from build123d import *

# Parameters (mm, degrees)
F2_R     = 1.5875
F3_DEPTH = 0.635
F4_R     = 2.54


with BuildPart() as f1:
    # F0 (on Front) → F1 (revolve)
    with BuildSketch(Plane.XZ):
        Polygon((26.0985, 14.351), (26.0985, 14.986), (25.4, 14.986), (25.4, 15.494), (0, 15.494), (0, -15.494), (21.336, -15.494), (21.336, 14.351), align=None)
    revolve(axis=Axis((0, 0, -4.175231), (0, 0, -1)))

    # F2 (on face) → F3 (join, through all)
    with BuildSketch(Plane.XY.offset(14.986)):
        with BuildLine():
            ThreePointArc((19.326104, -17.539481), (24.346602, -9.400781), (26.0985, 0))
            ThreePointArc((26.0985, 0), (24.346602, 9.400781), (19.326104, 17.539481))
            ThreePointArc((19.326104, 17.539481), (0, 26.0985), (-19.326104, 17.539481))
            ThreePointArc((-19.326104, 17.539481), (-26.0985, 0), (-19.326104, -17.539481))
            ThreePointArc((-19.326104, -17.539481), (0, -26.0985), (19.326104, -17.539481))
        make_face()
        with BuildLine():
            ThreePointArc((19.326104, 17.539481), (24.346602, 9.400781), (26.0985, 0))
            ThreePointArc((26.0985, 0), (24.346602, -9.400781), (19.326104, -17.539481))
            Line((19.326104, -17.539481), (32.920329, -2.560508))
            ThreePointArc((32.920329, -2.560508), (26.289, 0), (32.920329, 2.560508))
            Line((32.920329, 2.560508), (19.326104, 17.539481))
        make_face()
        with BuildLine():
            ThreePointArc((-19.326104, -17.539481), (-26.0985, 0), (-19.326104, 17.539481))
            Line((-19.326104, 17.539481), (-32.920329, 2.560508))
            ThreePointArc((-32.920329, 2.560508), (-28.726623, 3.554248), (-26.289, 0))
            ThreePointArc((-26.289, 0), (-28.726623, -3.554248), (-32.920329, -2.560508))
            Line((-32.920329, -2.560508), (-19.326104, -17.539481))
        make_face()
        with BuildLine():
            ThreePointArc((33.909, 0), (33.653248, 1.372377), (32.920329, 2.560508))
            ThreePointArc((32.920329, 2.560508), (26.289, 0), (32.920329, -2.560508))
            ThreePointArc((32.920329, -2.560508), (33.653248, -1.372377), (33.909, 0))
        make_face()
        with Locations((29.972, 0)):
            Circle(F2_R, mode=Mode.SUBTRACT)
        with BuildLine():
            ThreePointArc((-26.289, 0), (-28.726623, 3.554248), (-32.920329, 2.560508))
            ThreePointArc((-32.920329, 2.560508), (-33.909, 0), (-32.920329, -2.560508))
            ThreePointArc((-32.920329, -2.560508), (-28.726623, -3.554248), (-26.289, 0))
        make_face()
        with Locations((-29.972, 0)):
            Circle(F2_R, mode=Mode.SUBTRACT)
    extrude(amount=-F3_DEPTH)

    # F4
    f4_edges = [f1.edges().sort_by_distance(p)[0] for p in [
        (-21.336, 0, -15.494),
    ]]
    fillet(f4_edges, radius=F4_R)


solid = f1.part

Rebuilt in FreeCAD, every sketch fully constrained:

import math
import FreeCAD as App
import Part
import Sketcher
from FreeCAD import Vector
Q = App.Units.Quantity


def edges_at(feature, points):
    """Names of the edges that pass closest to the given points."""
    edges = feature.Shape.Edges
    near = lambda p: min(range(len(edges)), key=lambda i: edges[i].distToShape(Part.Vertex(*p))[0])
    return sorted({f"Edge{near(p) + 1}" for p in points})


def add_polygon(sketch, points):
    """Adds a closed chain of lines whose ends are joined by coincident constraints."""
    first, n = sketch.GeometryCount, len(points)
    for a, b in zip(points, points[1:] + points[:1]):
        sketch.addGeometry(Part.LineSegment(App.Vector(*a, 0), App.Vector(*b, 0)), False)
    for i in range(n):
        sketch.addConstraint(Sketcher.Constraint("Coincident", first + i, 2, first + (i + 1) % n, 1))

doc = App.newDocument("Part")
body = doc.addObject("PartDesign::Body", "Body")

# Sketch on XZ plane
sketch1 = body.newObject("Sketcher::SketchObject", "Sketch")
sketch1.AttachmentSupport = (doc.getObject("XZ_Plane"), [""])
sketch1.MapMode = "FlatFace"
add_polygon(sketch1, [(26.0985, 14.351), (26.0985, 14.986), (25.4, 14.986), (25.4, 15.494), (0, 15.494), (0, -15.494), (21.336, -15.494), (21.336, 14.351)])  # lines 0-7
sketch1.addConstraint([
    Sketcher.Constraint("Vertical", 0),
    Sketcher.Constraint("Horizontal", 1),
    Sketcher.Constraint("Vertical", 2),
    Sketcher.Constraint("Horizontal", 3),
    Sketcher.Constraint("Vertical", 4),
    Sketcher.Constraint("Horizontal", 5),
    Sketcher.Constraint("Vertical", 6),
    Sketcher.Constraint("Horizontal", 7),
    Sketcher.Constraint("Symmetric", 3, 2, 4, 2, -1, 1),
    Sketcher.Constraint("DistanceX", 3, 2, 3, 1, Q("1 in")),
    Sketcher.Constraint("DistanceX", 5, 1, 5, 2, Q("0.84 in")),
    Sketcher.Constraint("DistanceY", 2, 1, 2, 2, Q("0.02 in")),
    Sketcher.Constraint("DistanceY", 4, 2, 4, 1, Q("1.22 in")),
    Sketcher.Constraint("DistanceX", 7, 1, 7, 2, Q("0.1875 in")),
    Sketcher.Constraint("DistanceY", 0, 1, 0, 2, Q("0.025 in")),
])
revolution = body.newObject("PartDesign::Revolution", "Revolution")
revolution.Profile = sketch1
revolution.ReferenceAxis = (sketch1, ["V_Axis"])
revolution.Angle = 360

# Sketch on XY plane
sketch2 = body.newObject("Sketcher::SketchObject", "Sketch001")
sketch2.AttachmentSupport = (doc.getObject("XY_Plane"), [""])
sketch2.MapMode = "FlatFace"
sketch2.AttachmentOffset = App.Placement(Vector(0, 0, 0.59 * 25.4), App.Rotation())
sketch2.addGeometry([
    Part.ArcOfCircle(Part.Circle(Vector(0, 0.000001, 0), Vector(0, 0, 1), 26.098499), math.radians(42.225435), math.radians(137.774565)),  # 0
    Part.LineSegment(Vector(-19.326104, 17.539481, 0), Vector(-32.920329, 2.560508, 0)),  # 1
    Part.ArcOfCircle(Part.Circle(Vector(-30.099001, 0, 0), Vector(0, 0, 1), 3.809999), math.radians(137.774558), math.radians(222.225442)),  # 2
    Part.LineSegment(Vector(-32.920329, -2.560508, 0), Vector(-19.326104, -17.539481, 0)),  # 3
    Part.ArcOfCircle(Part.Circle(Vector(0, -0.000001, 0), Vector(0, 0, 1), 26.098499), math.radians(-137.774565), math.radians(-42.225435)),  # 4
    Part.LineSegment(Vector(19.326104, -17.539481, 0), Vector(32.920329, -2.560508, 0)),  # 5
    Part.ArcOfCircle(Part.Circle(Vector(30.098997, 0.000002, 0), Vector(0, 0, 1), 3.810003), math.radians(-42.225419), math.radians(-0.000023)),  # 6
    Part.ArcOfCircle(Part.Circle(Vector(30.098997, -0.000002, 0), Vector(0, 0, 1), 3.810003), math.radians(0.000023), math.radians(42.225419)),  # 7
    Part.LineSegment(Vector(32.920329, 2.560508, 0), Vector(19.326104, 17.539481, 0)),  # 8
    Part.Circle(Vector(-29.972, 0, 0), Vector(0, 0, 1), 1.5875),  # 9
    Part.Circle(Vector(29.972, 0, 0), Vector(0, 0, 1), 1.5875),  # 10
], False)
sketch2.addConstraint([
    Sketcher.Constraint("Tangent", 0, 2, 1, 1),
    Sketcher.Constraint("Tangent", 1, 2, 2, 1),
    Sketcher.Constraint("Tangent", 2, 2, 3, 1),
    Sketcher.Constraint("Tangent", 3, 2, 4, 1),
    Sketcher.Constraint("Tangent", 4, 2, 5, 1),
    Sketcher.Constraint("Tangent", 5, 2, 6, 1),
    Sketcher.Constraint("Tangent", 6, 2, 7, 1),
    Sketcher.Constraint("Tangent", 7, 2, 8, 1),
    Sketcher.Constraint("Tangent", 8, 2, 0, 1),
    Sketcher.Constraint("Coincident", 0, 3, -1, 1),
    Sketcher.Constraint("Coincident", 4, 3, -1, 1),
    Sketcher.Constraint("Equal", 0, 4),
    Sketcher.Constraint("Equal", 6, 7),
    Sketcher.Constraint("Equal", 9, 10),
    Sketcher.Constraint("Symmetric", 2, 3, 6, 3, -1, 1),
    Sketcher.Constraint("Symmetric", 9, 3, 10, 3, -1, 1),
    Sketcher.Constraint("Symmetric", 2, 2, 5, 2, -2),
    Sketcher.Constraint("PointOnObject", 9, 3, -1),
    Sketcher.Constraint("PointOnObject", 6, 2, -1),
    Sketcher.Constraint("Radius", 2, Q("0.15 in")),
    Sketcher.Constraint("Diameter", 9, Q("0.125 in")),
    Sketcher.Constraint("Radius", 0, Q("1.0275 in")),
    Sketcher.Constraint("DistanceX", 9, 3, -1, 1, Q("1.18 in")),
    Sketcher.Constraint("DistanceX", 2, 3, 6, 3, Q("2.3699999 in")),
])
pad1 = body.newObject("PartDesign::Pad", "Pad")
pad1.Profile = sketch2
pad1.Length = Q("0.025 in")
pad1.Reversed = True
doc.recompute()

fillet = body.newObject("PartDesign::Fillet", "Fillet")
fillet.Base = (pad1, edges_at(pad1, [(-21.336, 0, -15.494)]))
fillet.Radius = Q("0.1 in")

doc.recompute()
